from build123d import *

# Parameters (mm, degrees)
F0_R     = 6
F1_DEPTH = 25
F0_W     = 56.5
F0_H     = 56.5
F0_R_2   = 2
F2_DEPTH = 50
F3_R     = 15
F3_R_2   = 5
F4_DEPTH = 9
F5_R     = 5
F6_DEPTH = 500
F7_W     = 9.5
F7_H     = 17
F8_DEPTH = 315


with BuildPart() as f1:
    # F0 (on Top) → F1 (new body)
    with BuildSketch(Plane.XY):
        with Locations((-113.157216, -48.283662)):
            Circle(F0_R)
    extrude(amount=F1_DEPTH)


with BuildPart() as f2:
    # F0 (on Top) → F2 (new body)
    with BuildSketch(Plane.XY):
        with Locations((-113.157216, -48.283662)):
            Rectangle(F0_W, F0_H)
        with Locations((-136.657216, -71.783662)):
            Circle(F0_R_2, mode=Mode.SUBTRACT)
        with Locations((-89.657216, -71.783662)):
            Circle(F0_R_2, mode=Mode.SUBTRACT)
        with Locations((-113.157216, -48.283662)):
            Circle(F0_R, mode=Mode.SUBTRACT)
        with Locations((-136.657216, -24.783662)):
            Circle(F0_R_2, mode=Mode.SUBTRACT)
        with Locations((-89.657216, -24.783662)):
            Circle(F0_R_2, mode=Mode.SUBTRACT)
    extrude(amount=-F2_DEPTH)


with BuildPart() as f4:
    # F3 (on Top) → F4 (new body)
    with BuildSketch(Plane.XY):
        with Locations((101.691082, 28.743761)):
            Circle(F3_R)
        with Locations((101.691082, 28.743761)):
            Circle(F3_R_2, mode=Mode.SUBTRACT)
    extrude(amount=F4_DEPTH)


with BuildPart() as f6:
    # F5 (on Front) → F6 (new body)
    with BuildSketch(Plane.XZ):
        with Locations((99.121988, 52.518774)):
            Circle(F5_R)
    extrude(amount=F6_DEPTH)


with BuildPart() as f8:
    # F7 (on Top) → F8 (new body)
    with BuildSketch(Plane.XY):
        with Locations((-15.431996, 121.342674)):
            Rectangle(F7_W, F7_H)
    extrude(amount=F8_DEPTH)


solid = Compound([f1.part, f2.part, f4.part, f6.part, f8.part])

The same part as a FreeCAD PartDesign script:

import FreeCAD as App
import Part
import Sketcher
Q = App.Units.Quantity


def add_polygon(sketch, points):
    """Adds a closed chain of lines whose ends are joined by coincident constraints."""
    first, n = sketch.GeometryCount, len(points)
    for a, b in zip(points, points[1:] + points[:1]):
        sketch.addGeometry(Part.LineSegment(App.Vector(*a, 0), App.Vector(*b, 0)), False)
    for i in range(n):
        sketch.addConstraint(Sketcher.Constraint("Coincident", first + i, 2, first + (i + 1) % n, 1))

doc = App.newDocument("Part")
params = doc.addObject("Spreadsheet::Sheet", "Params")
for row, (alias, value) in enumerate([
    ("sketch1_diameter", "12 mm"),
    ("pad1_length", "25 mm"),
    ("sketch2_diameter", "4 mm"),
    ("sketch2_diameter2", "12 mm"),
    ("sketch2_width", "56.5 mm"),
    ("pad2_length", "50 mm"),
    ("sketch3_diameter", "30 mm"),
    ("sketch3_diameter2", "10 mm"),
    ("pad3_length", "9 mm"),
    ("sketch4_diameter", "10 mm"),
    ("pad4_length", "500 mm"),
    ("sketch5_height", "17 mm"),
    ("sketch5_width", "9.5 mm"),
    ("pad5_length", "315 mm"),
], start=1):
    params.set(f"A{row}", alias)
    params.set(f"B{row}", "=" + value)
    params.setAlias(f"B{row}", alias)

body = doc.addObject("PartDesign::Body", "Body")

# Sketch on XY plane
sketch1 = body.newObject("Sketcher::SketchObject", "Sketch")
sketch1.AttachmentSupport = (doc.getObject("XY_Plane"), [""])
sketch1.MapMode = "FlatFace"
sketch1.addGeometry(Part.Circle(App.Vector(-113, -48, 0), App.Vector(0, 0, 1), 6), False)
sketch1.addConstraint(Sketcher.Constraint("Diameter", 0, Q("12 mm")))
sketch1.addConstraint(Sketcher.Constraint("DistanceX", 0, 3, -1, 1, Q("113.157216 mm")))
sketch1.addConstraint(Sketcher.Constraint("DistanceY", 0, 3, -1, 1, Q("48.283662 mm")))
sketch1.setExpression("Constraints[0]", "Params.sketch1_diameter")
pad1 = body.newObject("PartDesign::Pad", "Pad")
pad1.Profile = sketch1
pad1.setExpression("Length", "Params.pad1_length")
body2 = doc.addObject("PartDesign::Body", "Body001")

# Sketch on XY plane
sketch2 = body2.newObject("Sketcher::SketchObject", "Sketch001")
sketch2.AttachmentSupport = (doc.getObject("XY_Plane001"), [""])
sketch2.MapMode = "FlatFace"
add_polygon(sketch2, [(-141.4, -20), (-141.4, -76.5), (-84.9, -76.5), (-84.9, -20)])  # lines 0-3
sketch2.addGeometry(Part.Circle(App.Vector(-136.7, -71.8, 0), App.Vector(0, 0, 1), 2), False)  # 4
sketch2.addGeometry(Part.Circle(App.Vector(-89.7, -71.8, 0), App.Vector(0, 0, 1), 2), False)  # 5
sketch2.addGeometry(Part.Circle(App.Vector(-136.7, -24.8, 0), App.Vector(0, 0, 1), 2), False)  # 6
sketch2.addGeometry(Part.Circle(App.Vector(-113.2, -48.3, 0), App.Vector(0, 0, 1), 6), False)  # 7
sketch2.addGeometry(Part.Circle(App.Vector(-89.7, -24.8, 0), App.Vector(0, 0, 1), 2), False)  # 8
sketch2.addConstraint(Sketcher.Constraint("Vertical", 0))
sketch2.addConstraint(Sketcher.Constraint("Horizontal", 1))
sketch2.addConstraint(Sketcher.Constraint("Vertical", 2))
sketch2.addConstraint(Sketcher.Constraint("Horizontal", 3))
sketch2.addConstraint(Sketcher.Constraint("Equal", 4, 5))
sketch2.addConstraint(Sketcher.Constraint("Equal", 5, 6))
sketch2.addConstraint(Sketcher.Constraint("Equal", 6, 8))
sketch2.addConstraint(Sketcher.Constraint("Horizontal", 4, 3, 5, 3))
sketch2.addConstraint(Sketcher.Constraint("Horizontal", 6, 3, 8, 3))
sketch2.addConstraint(Sketcher.Constraint("Vertical", 4, 3, 6, 3))
sketch2.addConstraint(Sketcher.Constraint("Vertical", 5, 3, 8, 3))
sketch2.addConstraint(Sketcher.Constraint("Equal", 3, 0))
sketch2.addConstraint(Sketcher.Constraint("Diameter", 4, Q("4 mm")))
sketch2.addConstraint(Sketcher.Constraint("Diameter", 7, Q("12 mm")))
sketch2.addConstraint(Sketcher.Constraint("DistanceX", 1, 1, 1, 2, Q("56.5 mm")))
sketch2.addConstraint(Sketcher.Constraint("DistanceX", 4, 3, 5, 3, Q("47 mm")))
sketch2.addConstraint(Sketcher.Constraint("DistanceY", 4, 3, 6, 3, Q("47 mm")))
sketch2.addConstraint(Sketcher.Constraint("DistanceX", 6, 3, 7, 3, Q("23.5 mm")))
sketch2.addConstraint(Sketcher.Constraint("DistanceY", 7, 3, 6, 3, Q("23.5 mm")))
sketch2.addConstraint(Sketcher.Constraint("DistanceX", 0, 2, 4, 3, Q("4.75 mm")))
sketch2.addConstraint(Sketcher.Constraint("DistanceY", 0, 2, 4, 3, Q("4.75 mm")))
sketch2.addConstraint(Sketcher.Constraint("DistanceY", 6, 3, -1, 1, Q("24.783662 mm")))
sketch2.addConstraint(Sketcher.Constraint("DistanceX", 4, 3, -1, 1, Q("136.657216 mm")))
sketch2.setExpression("Constraints[16]", "Params.sketch2_diameter")
sketch2.setExpression("Constraints[17]", "Params.sketch2_diameter2")
sketch2.setExpression("Constraints[18]", "Params.sketch2_width")
pad2 = body2.newObject("PartDesign::Pad", "Pad001")
pad2.Profile = sketch2
pad2.setExpression("Length", "Params.pad2_length")
pad2.Reversed = True
body3 = doc.addObject("PartDesign::Body", "Body002")

# Sketch on XY plane
sketch3 = body3.newObject("Sketcher::SketchObject", "Sketch002")
sketch3.AttachmentSupport = (doc.getObject("XY_Plane002"), [""])
sketch3.MapMode = "FlatFace"
sketch3.addGeometry(Part.Circle(App.Vector(102, 29, 0), App.Vector(0, 0, 1), 15), False)
sketch3.addGeometry(Part.Circle(App.Vector(102, 29, 0), App.Vector(0, 0, 1), 5), False)
sketch3.addConstraint(Sketcher.Constraint("Coincident", 1, 3, 0, 3))
sketch3.addConstraint(Sketcher.Constraint("Diameter", 0, Q("30 mm")))
sketch3.addConstraint(Sketcher.Constraint("Diameter", 1, Q("10 mm")))
sketch3.addConstraint(Sketcher.Constraint("DistanceX", -1, 1, 0, 3, Q("101.691082 mm")))
sketch3.addConstraint(Sketcher.Constraint("DistanceY", -1, 1, 0, 3, Q("28.743761 mm")))
sketch3.setExpression("Constraints[1]", "Params.sketch3_diameter")
sketch3.setExpression("Constraints[2]", "Params.sketch3_diameter2")
pad3 = body3.newObject("PartDesign::Pad", "Pad002")
pad3.Profile = sketch3
pad3.setExpression("Length", "Params.pad3_length")
body4 = doc.addObject("PartDesign::Body", "Body003")

# Sketch on XZ plane
sketch4 = body4.newObject("Sketcher::SketchObject", "Sketch003")
sketch4.AttachmentSupport = (doc.getObject("XZ_Plane003"), [""])
sketch4.MapMode = "FlatFace"
sketch4.addGeometry(Part.Circle(App.Vector(99, 53, 0), App.Vector(0, 0, 1), 5), False)
sketch4.addConstraint(Sketcher.Constraint("Diameter", 0, Q("10 mm")))
sketch4.addConstraint(Sketcher.Constraint("DistanceX", -1, 1, 0, 3, Q("99.121988 mm")))
sketch4.addConstraint(Sketcher.Constraint("DistanceY", -1, 1, 0, 3, Q("52.518774 mm")))
sketch4.setExpression("Constraints[0]", "Params.sketch4_diameter")
pad4 = body4.newObject("PartDesign::Pad", "Pad003")
pad4.Profile = sketch4
pad4.setExpression("Length", "Params.pad4_length")
body5 = doc.addObject("PartDesign::Body", "Body004")

# Sketch on XY plane
sketch5 = body5.newObject("Sketcher::SketchObject", "Sketch004")
sketch5.AttachmentSupport = (doc.getObject("XY_Plane004"), [""])
sketch5.MapMode = "FlatFace"
add_polygon(sketch5, [(-20, 130), (-20, 113), (-11, 113), (-11, 130)])  # lines 0-3
sketch5.addConstraint(Sketcher.Constraint("Vertical", 0))
sketch5.addConstraint(Sketcher.Constraint("Horizontal", 1))
sketch5.addConstraint(Sketcher.Constraint("Vertical", 2))
sketch5.addConstraint(Sketcher.Constraint("Horizontal", 3))
sketch5.addConstraint(Sketcher.Constraint("DistanceY", 0, 2, 0, 1, Q("17 mm")))
sketch5.addConstraint(Sketcher.Constraint("DistanceX", 1, 1, 1, 2, Q("9.5 mm")))
sketch5.addConstraint(Sketcher.Constraint("DistanceX", 0, 2, -1, 1, Q("20.181996 mm")))
sketch5.addConstraint(Sketcher.Constraint("DistanceY", -1, 1, 0, 2, Q("112.842674 mm")))
sketch5.setExpression("Constraints[8]", "Params.sketch5_height")
sketch5.setExpression("Constraints[9]", "Params.sketch5_width")
pad5 = body5.newObject("PartDesign::Pad", "Pad004")
pad5.Profile = sketch5
pad5.setExpression("Length", "Params.pad5_length")

doc.recompute()
